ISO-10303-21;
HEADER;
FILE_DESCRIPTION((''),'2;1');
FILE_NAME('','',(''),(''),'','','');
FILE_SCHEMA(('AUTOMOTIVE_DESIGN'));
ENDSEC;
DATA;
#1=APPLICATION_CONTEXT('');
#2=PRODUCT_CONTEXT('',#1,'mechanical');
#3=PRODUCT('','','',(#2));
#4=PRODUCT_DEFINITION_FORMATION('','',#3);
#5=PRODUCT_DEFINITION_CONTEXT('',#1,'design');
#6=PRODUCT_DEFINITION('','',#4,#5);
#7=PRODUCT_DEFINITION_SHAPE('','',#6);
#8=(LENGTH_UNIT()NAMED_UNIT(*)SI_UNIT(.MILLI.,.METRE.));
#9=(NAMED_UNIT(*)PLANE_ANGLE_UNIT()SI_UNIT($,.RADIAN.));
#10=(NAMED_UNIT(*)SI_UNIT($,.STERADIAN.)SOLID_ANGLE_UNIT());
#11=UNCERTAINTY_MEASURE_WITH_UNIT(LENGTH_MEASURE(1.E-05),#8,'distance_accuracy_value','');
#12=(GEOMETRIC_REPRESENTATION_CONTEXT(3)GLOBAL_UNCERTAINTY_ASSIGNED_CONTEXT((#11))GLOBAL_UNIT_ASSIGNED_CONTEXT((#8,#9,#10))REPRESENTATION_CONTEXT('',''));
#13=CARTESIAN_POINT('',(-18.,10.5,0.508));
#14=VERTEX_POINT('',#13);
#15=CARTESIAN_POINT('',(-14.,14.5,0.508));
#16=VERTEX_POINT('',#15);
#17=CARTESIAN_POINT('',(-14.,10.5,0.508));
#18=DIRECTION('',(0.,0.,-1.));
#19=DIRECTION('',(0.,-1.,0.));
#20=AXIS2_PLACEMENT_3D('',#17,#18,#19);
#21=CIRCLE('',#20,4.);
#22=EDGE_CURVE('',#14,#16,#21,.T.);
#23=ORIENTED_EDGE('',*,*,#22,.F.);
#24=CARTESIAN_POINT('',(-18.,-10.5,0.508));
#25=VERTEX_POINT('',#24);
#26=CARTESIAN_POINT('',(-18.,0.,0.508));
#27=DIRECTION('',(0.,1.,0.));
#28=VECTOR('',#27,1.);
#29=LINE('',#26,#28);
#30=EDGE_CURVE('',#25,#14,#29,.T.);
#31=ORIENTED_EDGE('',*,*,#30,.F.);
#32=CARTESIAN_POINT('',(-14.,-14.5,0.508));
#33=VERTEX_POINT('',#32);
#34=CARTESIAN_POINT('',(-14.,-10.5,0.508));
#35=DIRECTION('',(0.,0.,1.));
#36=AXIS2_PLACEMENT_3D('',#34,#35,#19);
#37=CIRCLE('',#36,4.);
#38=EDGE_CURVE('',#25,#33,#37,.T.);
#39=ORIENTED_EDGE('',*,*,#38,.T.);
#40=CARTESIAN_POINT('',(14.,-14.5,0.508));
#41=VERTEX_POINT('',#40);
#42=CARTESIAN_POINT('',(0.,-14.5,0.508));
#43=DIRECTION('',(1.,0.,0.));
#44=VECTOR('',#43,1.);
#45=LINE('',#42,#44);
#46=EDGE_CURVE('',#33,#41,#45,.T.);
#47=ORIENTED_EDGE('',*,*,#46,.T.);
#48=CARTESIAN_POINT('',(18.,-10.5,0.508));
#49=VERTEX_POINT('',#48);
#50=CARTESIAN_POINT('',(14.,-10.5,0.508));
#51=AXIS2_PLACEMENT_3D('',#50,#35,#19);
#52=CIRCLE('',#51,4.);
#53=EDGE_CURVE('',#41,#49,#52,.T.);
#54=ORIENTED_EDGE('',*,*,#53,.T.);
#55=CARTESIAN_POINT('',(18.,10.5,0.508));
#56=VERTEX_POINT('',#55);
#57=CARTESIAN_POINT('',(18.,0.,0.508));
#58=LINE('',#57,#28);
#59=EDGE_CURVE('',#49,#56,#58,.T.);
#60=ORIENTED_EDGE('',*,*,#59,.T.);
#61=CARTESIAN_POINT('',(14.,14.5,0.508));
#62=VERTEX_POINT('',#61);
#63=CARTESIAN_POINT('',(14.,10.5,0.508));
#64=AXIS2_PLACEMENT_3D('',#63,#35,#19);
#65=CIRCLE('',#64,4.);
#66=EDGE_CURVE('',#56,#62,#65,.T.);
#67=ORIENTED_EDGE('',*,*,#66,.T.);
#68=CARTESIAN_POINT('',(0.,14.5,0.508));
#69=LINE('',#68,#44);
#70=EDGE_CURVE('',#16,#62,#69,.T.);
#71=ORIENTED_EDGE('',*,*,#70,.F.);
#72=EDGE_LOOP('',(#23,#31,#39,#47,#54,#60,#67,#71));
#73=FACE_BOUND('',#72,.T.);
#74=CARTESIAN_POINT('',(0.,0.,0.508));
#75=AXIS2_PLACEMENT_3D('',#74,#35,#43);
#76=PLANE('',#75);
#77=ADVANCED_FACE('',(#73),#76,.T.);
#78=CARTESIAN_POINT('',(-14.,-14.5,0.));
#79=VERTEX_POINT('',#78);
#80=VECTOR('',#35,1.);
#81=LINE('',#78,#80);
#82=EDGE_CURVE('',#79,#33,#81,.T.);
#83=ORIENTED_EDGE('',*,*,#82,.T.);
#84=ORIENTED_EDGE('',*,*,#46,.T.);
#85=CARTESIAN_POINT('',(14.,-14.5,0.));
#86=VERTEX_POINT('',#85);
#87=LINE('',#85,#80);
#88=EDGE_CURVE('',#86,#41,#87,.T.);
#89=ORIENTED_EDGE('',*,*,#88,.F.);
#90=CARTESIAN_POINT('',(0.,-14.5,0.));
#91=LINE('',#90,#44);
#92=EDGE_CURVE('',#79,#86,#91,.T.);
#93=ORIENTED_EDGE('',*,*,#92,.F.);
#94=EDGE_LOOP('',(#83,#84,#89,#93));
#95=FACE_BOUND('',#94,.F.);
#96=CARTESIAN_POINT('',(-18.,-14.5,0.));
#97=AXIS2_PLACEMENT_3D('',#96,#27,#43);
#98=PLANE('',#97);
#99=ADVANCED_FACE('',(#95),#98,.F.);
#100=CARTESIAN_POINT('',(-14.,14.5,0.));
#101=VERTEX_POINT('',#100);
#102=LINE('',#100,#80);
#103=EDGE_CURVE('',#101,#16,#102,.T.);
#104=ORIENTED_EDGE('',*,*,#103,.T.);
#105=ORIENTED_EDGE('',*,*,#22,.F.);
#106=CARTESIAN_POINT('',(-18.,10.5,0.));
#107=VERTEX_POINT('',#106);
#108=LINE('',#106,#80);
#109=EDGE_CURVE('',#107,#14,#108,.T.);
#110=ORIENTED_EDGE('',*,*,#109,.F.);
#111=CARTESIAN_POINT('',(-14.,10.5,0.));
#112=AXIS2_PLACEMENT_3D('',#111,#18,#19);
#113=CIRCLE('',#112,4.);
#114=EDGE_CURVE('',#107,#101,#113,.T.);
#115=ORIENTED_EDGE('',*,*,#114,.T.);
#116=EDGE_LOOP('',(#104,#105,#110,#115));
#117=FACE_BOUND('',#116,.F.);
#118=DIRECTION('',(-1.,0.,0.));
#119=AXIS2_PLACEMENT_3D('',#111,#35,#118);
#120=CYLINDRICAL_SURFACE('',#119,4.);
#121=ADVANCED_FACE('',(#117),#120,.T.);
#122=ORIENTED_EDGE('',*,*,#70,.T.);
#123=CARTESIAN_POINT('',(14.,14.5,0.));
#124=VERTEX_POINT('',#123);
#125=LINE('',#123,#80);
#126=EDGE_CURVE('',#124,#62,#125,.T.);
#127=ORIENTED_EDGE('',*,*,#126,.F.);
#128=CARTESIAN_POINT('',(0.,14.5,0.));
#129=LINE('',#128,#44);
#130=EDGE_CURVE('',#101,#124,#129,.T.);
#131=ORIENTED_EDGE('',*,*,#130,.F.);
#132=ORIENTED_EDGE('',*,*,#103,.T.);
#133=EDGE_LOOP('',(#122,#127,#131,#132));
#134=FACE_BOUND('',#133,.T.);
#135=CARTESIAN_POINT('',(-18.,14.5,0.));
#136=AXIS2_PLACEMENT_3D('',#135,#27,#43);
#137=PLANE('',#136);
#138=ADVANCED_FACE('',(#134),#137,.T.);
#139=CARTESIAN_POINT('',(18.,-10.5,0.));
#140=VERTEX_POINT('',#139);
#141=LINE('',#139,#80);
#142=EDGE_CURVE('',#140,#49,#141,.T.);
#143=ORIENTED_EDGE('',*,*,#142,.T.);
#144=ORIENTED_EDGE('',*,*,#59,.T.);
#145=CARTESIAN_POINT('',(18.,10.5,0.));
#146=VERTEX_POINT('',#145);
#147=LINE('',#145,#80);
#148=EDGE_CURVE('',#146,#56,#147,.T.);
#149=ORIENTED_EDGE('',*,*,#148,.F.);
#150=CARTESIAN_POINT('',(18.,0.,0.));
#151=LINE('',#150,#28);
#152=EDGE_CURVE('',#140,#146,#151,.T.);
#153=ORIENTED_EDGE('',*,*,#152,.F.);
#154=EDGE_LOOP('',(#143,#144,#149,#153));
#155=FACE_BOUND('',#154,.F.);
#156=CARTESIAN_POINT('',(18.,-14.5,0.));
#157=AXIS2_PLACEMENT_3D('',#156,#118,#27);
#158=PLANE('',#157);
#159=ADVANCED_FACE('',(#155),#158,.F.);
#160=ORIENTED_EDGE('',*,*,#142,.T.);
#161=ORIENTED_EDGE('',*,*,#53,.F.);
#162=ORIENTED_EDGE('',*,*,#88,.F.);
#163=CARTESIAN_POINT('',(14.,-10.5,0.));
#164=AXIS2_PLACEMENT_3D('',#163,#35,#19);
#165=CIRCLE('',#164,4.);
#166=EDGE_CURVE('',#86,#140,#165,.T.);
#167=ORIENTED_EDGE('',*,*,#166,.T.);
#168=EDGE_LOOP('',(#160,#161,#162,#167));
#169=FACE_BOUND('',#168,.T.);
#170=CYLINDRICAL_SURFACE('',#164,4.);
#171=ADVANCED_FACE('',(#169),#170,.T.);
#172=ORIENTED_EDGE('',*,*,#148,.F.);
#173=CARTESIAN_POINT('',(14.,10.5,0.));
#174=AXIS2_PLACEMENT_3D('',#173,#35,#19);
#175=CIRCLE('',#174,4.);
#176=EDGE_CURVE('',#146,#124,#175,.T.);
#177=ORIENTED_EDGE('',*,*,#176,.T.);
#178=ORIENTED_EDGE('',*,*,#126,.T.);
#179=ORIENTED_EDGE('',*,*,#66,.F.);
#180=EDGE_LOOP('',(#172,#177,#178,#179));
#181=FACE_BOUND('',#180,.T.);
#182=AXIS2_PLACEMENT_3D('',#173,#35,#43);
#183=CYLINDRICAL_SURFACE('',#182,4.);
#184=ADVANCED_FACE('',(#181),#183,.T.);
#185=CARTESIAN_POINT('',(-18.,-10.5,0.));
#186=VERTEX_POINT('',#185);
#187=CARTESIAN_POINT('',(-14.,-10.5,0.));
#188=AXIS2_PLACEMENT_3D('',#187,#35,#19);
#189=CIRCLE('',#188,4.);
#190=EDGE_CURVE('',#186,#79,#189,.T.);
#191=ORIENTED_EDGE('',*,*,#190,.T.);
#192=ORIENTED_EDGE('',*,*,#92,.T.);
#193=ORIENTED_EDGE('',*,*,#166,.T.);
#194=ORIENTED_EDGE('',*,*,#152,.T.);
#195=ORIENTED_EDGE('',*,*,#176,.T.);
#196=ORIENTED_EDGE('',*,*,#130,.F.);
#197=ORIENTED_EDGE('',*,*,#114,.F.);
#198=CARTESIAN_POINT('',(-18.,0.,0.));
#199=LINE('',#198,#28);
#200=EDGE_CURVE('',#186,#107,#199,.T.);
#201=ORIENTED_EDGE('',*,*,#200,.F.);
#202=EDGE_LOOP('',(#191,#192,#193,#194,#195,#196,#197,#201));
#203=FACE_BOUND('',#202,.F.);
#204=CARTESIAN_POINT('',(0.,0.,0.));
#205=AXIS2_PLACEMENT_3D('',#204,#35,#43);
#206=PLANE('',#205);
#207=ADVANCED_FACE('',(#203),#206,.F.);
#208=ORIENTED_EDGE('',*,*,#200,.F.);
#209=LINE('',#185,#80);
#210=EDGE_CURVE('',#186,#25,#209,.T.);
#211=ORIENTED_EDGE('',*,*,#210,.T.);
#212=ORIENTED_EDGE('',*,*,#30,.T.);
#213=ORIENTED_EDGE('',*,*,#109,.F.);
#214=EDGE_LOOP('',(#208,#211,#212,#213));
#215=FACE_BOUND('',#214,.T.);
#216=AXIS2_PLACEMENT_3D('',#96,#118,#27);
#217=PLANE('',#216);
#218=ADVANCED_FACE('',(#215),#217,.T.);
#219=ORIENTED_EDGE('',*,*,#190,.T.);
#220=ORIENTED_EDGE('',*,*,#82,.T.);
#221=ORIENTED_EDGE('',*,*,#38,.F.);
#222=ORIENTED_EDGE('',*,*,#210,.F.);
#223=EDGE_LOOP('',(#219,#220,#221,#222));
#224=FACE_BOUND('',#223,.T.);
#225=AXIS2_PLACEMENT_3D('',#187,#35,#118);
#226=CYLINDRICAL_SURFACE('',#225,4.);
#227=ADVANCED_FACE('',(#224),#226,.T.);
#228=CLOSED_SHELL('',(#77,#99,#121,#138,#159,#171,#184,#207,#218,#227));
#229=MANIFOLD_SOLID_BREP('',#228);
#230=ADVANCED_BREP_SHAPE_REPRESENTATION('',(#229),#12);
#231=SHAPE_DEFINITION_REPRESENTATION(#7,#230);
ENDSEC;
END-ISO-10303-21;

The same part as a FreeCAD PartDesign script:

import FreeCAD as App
import Part
import Sketcher
from FreeCAD import Vector
Q = App.Units.Quantity


def edges_at(feature, points):
    """Names of the edges that pass closest to the given points."""
    edges = feature.Shape.Edges
    near = lambda p: min(range(len(edges)), key=lambda i: edges[i].distToShape(Part.Vertex(*p))[0])
    return sorted({f"Edge{near(p) + 1}" for p in points})

doc = App.newDocument("Part")
params = doc.addObject("Spreadsheet::Sheet", "Params")
for row, (alias, value) in enumerate([
    ("sketch1_width", "36 mm"),
    ("sketch1_height", "29 mm"),
    ("pad1_length", "0.508 mm"),
    ("fillet_radius", "4 mm"),
], start=1):
    params.set(f"A{row}", alias)
    params.set(f"B{row}", "=" + value)
    params.setAlias(f"B{row}", alias)

body = doc.addObject("PartDesign::Body", "Body")

sketch1 = body.newObject("Sketcher::SketchObject", "Sketch")
sketch1.AttachmentSupport = (doc.getObject("XY_Plane"), [""])
sketch1.MapMode = "FlatFace"
sketch1.addGeometry([
    Part.LineSegment(Vector(-18, 14, 0), Vector(-18, -14, 0)),
    Part.LineSegment(Vector(-18, -14, 0), Vector(18, -14, 0)),
    Part.LineSegment(Vector(18, -14, 0), Vector(18, 14, 0)),
    Part.LineSegment(Vector(18, 14, 0), Vector(-18, 14, 0)),
], False)
sketch1.addConstraint([
    Sketcher.Constraint("Coincident", 0, 2, 1, 1),
    Sketcher.Constraint("Coincident", 1, 2, 2, 1),
    Sketcher.Constraint("Coincident", 2, 2, 3, 1),
    Sketcher.Constraint("Coincident", 3, 2, 0, 1),
    Sketcher.Constraint("Vertical", 0),
    Sketcher.Constraint("Horizontal", 1),
    Sketcher.Constraint("Vertical", 2),
    Sketcher.Constraint("Horizontal", 3),
    Sketcher.Constraint("Symmetric", 0, 2, 2, 2, -1, 1),
    Sketcher.Constraint("DistanceX", 1, 1, 1, 2, Q("36 mm")),
    Sketcher.Constraint("DistanceY", 0, 2, 0, 1, Q("29 mm")),
])
sketch1.setExpression("Constraints[9]", "Params.sketch1_width")
sketch1.setExpression("Constraints[10]", "Params.sketch1_height")
pad1 = body.newObject("PartDesign::Pad", "Pad")
pad1.Profile = sketch1
pad1.setExpression("Length", "Params.pad1_length")
doc.recompute()

fillet = body.newObject("PartDesign::Fillet", "Fillet")
fillet.Base = (pad1, edges_at(pad1, [
    (-18, 14.5, 0.254),
    (18, 14.5, 0.254),
    (18, -14.5, 0.254),
    (-18, -14.5, 0.254),
]))
fillet.setExpression("Radius", "Params.fillet_radius")

doc.recompute()
